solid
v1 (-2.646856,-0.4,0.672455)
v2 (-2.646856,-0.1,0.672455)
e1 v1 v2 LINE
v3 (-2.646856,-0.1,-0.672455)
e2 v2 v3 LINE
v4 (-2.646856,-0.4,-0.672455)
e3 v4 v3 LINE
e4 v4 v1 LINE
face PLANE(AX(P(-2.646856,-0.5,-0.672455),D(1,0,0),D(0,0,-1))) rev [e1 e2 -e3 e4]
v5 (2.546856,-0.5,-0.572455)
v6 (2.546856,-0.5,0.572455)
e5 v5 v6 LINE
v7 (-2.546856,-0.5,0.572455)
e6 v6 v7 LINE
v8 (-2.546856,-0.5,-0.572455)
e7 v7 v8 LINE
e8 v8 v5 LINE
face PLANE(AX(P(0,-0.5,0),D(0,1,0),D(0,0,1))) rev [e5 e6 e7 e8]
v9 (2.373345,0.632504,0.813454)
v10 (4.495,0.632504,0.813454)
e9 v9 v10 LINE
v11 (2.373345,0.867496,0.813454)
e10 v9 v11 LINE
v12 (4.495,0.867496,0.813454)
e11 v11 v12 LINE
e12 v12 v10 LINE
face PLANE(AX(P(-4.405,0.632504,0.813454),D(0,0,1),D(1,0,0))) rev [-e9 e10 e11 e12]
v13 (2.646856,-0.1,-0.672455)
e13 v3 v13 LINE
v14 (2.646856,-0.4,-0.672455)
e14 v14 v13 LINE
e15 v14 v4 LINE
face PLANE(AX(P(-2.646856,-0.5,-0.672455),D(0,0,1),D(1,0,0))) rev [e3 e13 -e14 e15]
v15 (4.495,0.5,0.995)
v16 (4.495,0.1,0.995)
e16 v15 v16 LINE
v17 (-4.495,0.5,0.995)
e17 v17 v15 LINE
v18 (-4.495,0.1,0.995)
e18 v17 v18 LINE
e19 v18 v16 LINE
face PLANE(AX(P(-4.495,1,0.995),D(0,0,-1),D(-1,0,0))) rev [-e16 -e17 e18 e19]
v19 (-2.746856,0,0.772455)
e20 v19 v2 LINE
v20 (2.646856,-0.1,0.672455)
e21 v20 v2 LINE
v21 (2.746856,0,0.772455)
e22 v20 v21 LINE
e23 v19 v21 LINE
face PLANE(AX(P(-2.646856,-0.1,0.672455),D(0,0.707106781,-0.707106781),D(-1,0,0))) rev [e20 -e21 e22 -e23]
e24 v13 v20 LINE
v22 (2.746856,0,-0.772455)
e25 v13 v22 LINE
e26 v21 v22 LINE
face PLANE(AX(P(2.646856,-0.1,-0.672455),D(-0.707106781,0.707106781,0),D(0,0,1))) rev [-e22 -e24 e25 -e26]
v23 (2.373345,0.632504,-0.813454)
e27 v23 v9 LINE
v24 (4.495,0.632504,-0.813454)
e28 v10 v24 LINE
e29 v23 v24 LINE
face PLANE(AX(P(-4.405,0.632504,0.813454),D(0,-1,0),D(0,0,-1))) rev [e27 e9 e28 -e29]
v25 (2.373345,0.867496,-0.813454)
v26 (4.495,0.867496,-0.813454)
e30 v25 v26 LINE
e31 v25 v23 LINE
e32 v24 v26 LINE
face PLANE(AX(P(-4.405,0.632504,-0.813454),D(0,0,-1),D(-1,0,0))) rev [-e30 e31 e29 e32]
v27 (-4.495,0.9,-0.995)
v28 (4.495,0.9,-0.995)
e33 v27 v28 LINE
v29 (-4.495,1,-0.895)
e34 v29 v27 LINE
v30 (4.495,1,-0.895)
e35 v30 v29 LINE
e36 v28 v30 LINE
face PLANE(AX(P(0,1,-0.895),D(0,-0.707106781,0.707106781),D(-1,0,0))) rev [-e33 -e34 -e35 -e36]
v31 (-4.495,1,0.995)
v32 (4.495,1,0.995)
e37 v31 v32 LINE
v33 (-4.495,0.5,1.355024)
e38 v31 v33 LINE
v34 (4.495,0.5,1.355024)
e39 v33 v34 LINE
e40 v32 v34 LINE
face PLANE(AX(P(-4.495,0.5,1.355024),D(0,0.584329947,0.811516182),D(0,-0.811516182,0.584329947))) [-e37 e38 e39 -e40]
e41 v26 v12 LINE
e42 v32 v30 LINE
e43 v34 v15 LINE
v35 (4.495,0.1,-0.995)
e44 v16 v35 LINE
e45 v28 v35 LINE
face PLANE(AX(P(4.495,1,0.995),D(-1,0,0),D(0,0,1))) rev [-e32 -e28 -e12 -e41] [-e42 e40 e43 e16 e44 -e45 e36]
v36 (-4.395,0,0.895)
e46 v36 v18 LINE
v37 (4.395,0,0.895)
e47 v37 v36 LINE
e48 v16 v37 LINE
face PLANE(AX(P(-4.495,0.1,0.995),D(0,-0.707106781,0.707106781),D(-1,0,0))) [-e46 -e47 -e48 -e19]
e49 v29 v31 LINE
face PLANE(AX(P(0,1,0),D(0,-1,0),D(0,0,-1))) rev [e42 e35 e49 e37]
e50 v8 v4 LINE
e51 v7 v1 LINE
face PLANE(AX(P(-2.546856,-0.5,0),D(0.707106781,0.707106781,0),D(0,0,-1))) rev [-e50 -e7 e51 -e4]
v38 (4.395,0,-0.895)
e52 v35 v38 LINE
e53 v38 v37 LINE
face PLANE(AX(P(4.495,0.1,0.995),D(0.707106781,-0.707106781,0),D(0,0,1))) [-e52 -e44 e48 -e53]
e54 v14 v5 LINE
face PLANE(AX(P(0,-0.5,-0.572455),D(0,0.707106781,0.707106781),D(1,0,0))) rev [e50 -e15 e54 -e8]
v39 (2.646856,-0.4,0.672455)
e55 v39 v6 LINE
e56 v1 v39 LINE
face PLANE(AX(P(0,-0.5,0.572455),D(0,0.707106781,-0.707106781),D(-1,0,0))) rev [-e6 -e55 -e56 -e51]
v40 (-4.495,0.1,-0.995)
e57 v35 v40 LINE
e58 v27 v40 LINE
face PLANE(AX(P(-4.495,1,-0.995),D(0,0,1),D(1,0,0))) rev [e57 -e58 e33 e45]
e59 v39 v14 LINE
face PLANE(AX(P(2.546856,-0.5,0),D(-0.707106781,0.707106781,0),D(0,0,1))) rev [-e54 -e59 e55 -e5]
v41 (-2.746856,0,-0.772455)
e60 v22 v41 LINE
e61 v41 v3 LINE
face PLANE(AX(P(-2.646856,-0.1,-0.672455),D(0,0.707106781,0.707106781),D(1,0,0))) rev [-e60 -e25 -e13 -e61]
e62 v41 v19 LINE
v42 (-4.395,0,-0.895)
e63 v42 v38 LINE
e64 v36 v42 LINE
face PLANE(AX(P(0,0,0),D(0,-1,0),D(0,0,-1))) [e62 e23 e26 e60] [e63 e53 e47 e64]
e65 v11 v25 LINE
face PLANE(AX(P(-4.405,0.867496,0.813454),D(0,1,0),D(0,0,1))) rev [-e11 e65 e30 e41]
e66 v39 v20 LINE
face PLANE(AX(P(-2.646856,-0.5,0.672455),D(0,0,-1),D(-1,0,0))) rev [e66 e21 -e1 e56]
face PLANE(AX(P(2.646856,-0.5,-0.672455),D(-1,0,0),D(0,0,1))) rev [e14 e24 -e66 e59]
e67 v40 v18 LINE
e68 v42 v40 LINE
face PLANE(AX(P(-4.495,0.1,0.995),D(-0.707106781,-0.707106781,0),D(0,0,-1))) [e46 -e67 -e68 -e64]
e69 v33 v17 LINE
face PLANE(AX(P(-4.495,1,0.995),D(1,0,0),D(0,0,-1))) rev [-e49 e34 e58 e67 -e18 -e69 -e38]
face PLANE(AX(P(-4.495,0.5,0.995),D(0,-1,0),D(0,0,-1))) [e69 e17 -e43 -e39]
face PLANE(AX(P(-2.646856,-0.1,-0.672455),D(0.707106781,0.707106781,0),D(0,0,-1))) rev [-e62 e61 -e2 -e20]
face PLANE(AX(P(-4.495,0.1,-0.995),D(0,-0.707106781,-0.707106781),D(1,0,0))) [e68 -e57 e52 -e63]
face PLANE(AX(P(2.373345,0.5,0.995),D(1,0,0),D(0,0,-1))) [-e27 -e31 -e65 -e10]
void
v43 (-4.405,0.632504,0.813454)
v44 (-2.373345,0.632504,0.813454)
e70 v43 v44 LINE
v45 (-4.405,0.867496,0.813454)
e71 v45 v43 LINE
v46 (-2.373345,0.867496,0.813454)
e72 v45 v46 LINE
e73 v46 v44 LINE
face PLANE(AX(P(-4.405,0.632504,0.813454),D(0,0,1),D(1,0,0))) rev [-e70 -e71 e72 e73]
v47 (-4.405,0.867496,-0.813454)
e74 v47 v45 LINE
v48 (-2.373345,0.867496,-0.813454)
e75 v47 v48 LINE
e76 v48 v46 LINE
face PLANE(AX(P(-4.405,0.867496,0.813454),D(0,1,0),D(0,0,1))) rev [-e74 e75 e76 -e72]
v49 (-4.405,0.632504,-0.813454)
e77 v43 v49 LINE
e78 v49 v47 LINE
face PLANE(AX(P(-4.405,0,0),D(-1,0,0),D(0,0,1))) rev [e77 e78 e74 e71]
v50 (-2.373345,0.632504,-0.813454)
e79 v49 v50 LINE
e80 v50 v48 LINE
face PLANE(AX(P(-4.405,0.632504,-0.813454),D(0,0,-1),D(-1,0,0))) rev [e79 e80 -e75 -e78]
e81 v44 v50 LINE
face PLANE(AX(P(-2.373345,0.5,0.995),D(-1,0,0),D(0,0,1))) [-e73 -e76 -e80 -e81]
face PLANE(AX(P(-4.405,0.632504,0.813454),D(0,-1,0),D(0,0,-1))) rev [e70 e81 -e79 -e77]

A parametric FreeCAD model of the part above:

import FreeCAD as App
import Part
import Sketcher


def edges_at(feature, points):
    """Names of the edges that pass closest to the given points."""
    edges = feature.Shape.Edges
    near = lambda p: min(range(len(edges)), key=lambda i: edges[i].distToShape(Part.Vertex(*p))[0])
    return sorted({f"Edge{near(p) + 1}" for p in points})

doc = App.newDocument("Part")
body = doc.addObject("PartDesign::Body", "Body")

sketch1 = doc.addObject("Sketcher::SketchObject", "Sketch")
body.addObject(sketch1)
sketch1.AttachmentSupport = (doc.XZ_Plane, [""])
sketch1.MapMode = "FlatFace"
sketch1.addGeometry(Part.LineSegment(App.Vector(-4.5, -1, 0), App.Vector(-4.5, 1, 0)), False)
sketch1.addGeometry(Part.LineSegment(App.Vector(-4.5, 1, 0), App.Vector(4.5, 1, 0)), False)
sketch1.addGeometry(Part.LineSegment(App.Vector(4.5, 1, 0), App.Vector(4.5, -1, 0)), False)
sketch1.addGeometry(Part.LineSegment(App.Vector(4.5, -1, 0), App.Vector(-4.5, -1, 0)), False)
sketch1.addConstraint(Sketcher.Constraint("Coincident", 0, 2, 1, 1))
sketch1.addConstraint(Sketcher.Constraint("Coincident", 1, 2, 2, 1))
sketch1.addConstraint(Sketcher.Constraint("Coincident", 2, 2, 3, 1))
sketch1.addConstraint(Sketcher.Constraint("Coincident", 3, 2, 0, 1))
sketch1.addConstraint(Sketcher.Constraint("Vertical", 0))
sketch1.addConstraint(Sketcher.Constraint("Horizontal", 1))
sketch1.addConstraint(Sketcher.Constraint("Vertical", 2))
sketch1.addConstraint(Sketcher.Constraint("Horizontal", 3))
sketch1.addConstraint(Sketcher.Constraint("Symmetric", 0, 2, 2, 2, -1, 1))
sketch1.addConstraint(Sketcher.Constraint("DistanceX", 1, 1, 1, 2, 8.99))
sketch1.addConstraint(Sketcher.Constraint("DistanceY", 0, 1, 0, 2, 1.99))
pad1 = doc.addObject("PartDesign::Pad", "Pad")
body.addObject(pad1)
pad1.Profile = sketch1
pad1.Length = 1
pad1.Reversed = True

sketch2 = doc.addObject("Sketcher::SketchObject", "Sketch001")
body.addObject(sketch2)
sketch2.AttachmentSupport = (doc.YZ_Plane, [""])
sketch2.MapMode = "FlatFace"
sketch2.AttachmentOffset = App.Placement(App.Vector(0, 0, 4.495), App.Rotation())
sketch2.addGeometry(Part.LineSegment(App.Vector(0.5, 1.36, 0), App.Vector(0.5, 0.99, 0)), False)
sketch2.addGeometry(Part.LineSegment(App.Vector(0.5, 0.99, 0), App.Vector(1, 0.99, 0)), False)
sketch2.addGeometry(Part.LineSegment(App.Vector(1, 0.99, 0), App.Vector(0.5, 1.36, 0)), False)
sketch2.addConstraint(Sketcher.Constraint("Coincident", 0, 2, 1, 1))
sketch2.addConstraint(Sketcher.Constraint("Coincident", 1, 2, 2, 1))
sketch2.addConstraint(Sketcher.Constraint("Coincident", 2, 2, 0, 1))
sketch2.addConstraint(Sketcher.Constraint("Vertical", 0))
sketch2.addConstraint(Sketcher.Constraint("Horizontal", 1))
sketch2.addConstraint(Sketcher.Constraint("DistanceX", 1, 1, 1, 2, 0.5))
sketch2.addConstraint(Sketcher.Constraint("DistanceX", -1, 1, 1, 2, 1.0))
sketch2.addConstraint(Sketcher.Constraint("DistanceY", -1, 1, 0, 2, 0.995))
sketch2.addConstraint(Sketcher.Constraint("Distance", 2, 0.616131))
pad2 = doc.addObject("PartDesign::Pad", "Pad001")
body.addObject(pad2)
pad2.Profile = sketch2
pad2.Length = 8.99
pad2.Reversed = True

sketch3 = doc.addObject("Sketcher::SketchObject", "Sketch002")
body.addObject(sketch3)
sketch3.AttachmentSupport = (doc.YZ_Plane, [""])
sketch3.MapMode = "FlatFace"
sketch3.AttachmentOffset = App.Placement(App.Vector(0, 0, 4.495), App.Rotation())
sketch3.addGeometry(Part.LineSegment(App.Vector(0.87, 0.81, 0), App.Vector(0.63, 0.81, 0)), False)
sketch3.addGeometry(Part.LineSegment(App.Vector(0.63, 0.81, 0), App.Vector(0.63, -0.81, 0)), False)
sketch3.addGeometry(Part.LineSegment(App.Vector(0.63, -0.81, 0), App.Vector(0.87, -0.81, 0)), False)
sketch3.addGeometry(Part.LineSegment(App.Vector(0.87, -0.81, 0), App.Vector(0.87, 0.81, 0)), False)
sketch3.addConstraint(Sketcher.Constraint("Coincident", 0, 2, 1, 1))
sketch3.addConstraint(Sketcher.Constraint("Coincident", 1, 2, 2, 1))
sketch3.addConstraint(Sketcher.Constraint("Coincident", 2, 2, 3, 1))
sketch3.addConstraint(Sketcher.Constraint("Coincident", 3, 2, 0, 1))
sketch3.addConstraint(Sketcher.Constraint("Horizontal", 0))
sketch3.addConstraint(Sketcher.Constraint("Vertical", 1))
sketch3.addConstraint(Sketcher.Constraint("Horizontal", 2))
sketch3.addConstraint(Sketcher.Constraint("Vertical", 3))
sketch3.addConstraint(Sketcher.Constraint("DistanceY", 1, 2, 1, 1, 1.626908))
sketch3.addConstraint(Sketcher.Constraint("DistanceX", 0, 2, 0, 1, 0.234993))
sketch3.addConstraint(Sketcher.Constraint("DistanceX", -1, 1, 0, 2, 0.632504))
sketch3.addConstraint(Sketcher.Constraint("DistanceY", -1, 1, 0, 2, 0.813454))
pocket1 = doc.addObject("PartDesign::Pocket", "Pocket")
body.addObject(pocket1)
pocket1.Profile = sketch3
pocket1.Length = 8.9

sketch4 = doc.addObject("Sketcher::SketchObject", "Sketch003")
body.addObject(sketch4)
sketch4.AttachmentSupport = (doc.XZ_Plane, [""])
sketch4.MapMode = "FlatFace"
sketch4.addGeometry(Part.LineSegment(App.Vector(-2.6, 0.7, 0), App.Vector(-2.6, -0.7, 0)), False)
sketch4.addGeometry(Part.LineSegment(App.Vector(-2.6, -0.7, 0), App.Vector(2.6, -0.7, 0)), False)
sketch4.addGeometry(Part.LineSegment(App.Vector(2.6, -0.7, 0), App.Vector(2.6, 0.7, 0)), False)
sketch4.addGeometry(Part.LineSegment(App.Vector(2.6, 0.7, 0), App.Vector(-2.6, 0.7, 0)), False)
sketch4.addConstraint(Sketcher.Constraint("Coincident", 0, 2, 1, 1))
sketch4.addConstraint(Sketcher.Constraint("Coincident", 1, 2, 2, 1))
sketch4.addConstraint(Sketcher.Constraint("Coincident", 2, 2, 3, 1))
sketch4.addConstraint(Sketcher.Constraint("Coincident", 3, 2, 0, 1))
sketch4.addConstraint(Sketcher.Constraint("Vertical", 0))
sketch4.addConstraint(Sketcher.Constraint("Horizontal", 1))
sketch4.addConstraint(Sketcher.Constraint("Vertical", 2))
sketch4.addConstraint(Sketcher.Constraint("Horizontal", 3))
sketch4.addConstraint(Sketcher.Constraint("Symmetric", 0, 2, 2, 2, -1, 1))
sketch4.addConstraint(Sketcher.Constraint("DistanceX", 1, 1, 1, 2, 5.293712))
sketch4.addConstraint(Sketcher.Constraint("DistanceY", 0, 2, 0, 1, 1.34491))
pad3 = doc.addObject("PartDesign::Pad", "Pad002")
body.addObject(pad3)
pad3.Profile = sketch4
pad3.Length = 0.5

sketch5 = doc.addObject("Sketcher::SketchObject", "Sketch004")
body.addObject(sketch5)
sketch5.AttachmentSupport = (doc.XZ_Plane, [""])
sketch5.MapMode = "FlatFace"
sketch5.AttachmentOffset = App.Placement(App.Vector(0, 0, -1), App.Rotation())
sketch5.addGeometry(Part.LineSegment(App.Vector(-2.4, -1, 0), App.Vector(-2.4, 1, 0)), False)
sketch5.addGeometry(Part.LineSegment(App.Vector(-2.4, 1, 0), App.Vector(2.4, 1, 0)), False)
sketch5.addGeometry(Part.LineSegment(App.Vector(2.4, 1, 0), App.Vector(2.4, -1, 0)), False)
sketch5.addGeometry(Part.LineSegment(App.Vector(2.4, -1, 0), App.Vector(-2.4, -1, 0)), False)
sketch5.addConstraint(Sketcher.Constraint("Coincident", 0, 2, 1, 1))
sketch5.addConstraint(Sketcher.Constraint("Coincident", 1, 2, 2, 1))
sketch5.addConstraint(Sketcher.Constraint("Coincident", 2, 2, 3, 1))
sketch5.addConstraint(Sketcher.Constraint("Coincident", 3, 2, 0, 1))
sketch5.addConstraint(Sketcher.Constraint("Vertical", 0))
sketch5.addConstraint(Sketcher.Constraint("Horizontal", 1))
sketch5.addConstraint(Sketcher.Constraint("Vertical", 2))
sketch5.addConstraint(Sketcher.Constraint("Horizontal", 3))
sketch5.addConstraint(Sketcher.Constraint("Symmetric", 0, 2, 2, 2, -1, 1))
sketch5.addConstraint(Sketcher.Constraint("DistanceY", 0, 1, 0, 2, 1.99))
sketch5.addConstraint(Sketcher.Constraint("DistanceX", 1, 1, 1, 2, 4.74669))
pad4 = doc.addObject("PartDesign::Pad", "Pad003")
body.addObject(pad4)
pad4.Profile = sketch5
pad4.Length = 0.5
doc.recompute()

chamfer = doc.addObject("PartDesign::Chamfer", "Chamfer")
body.addObject(chamfer)
chamfer.Base = (pad4, edges_at(pad4, [
    (2.647, 0, 0),
    (0, 0, 0.672),
    (-2.647, 0, 0),
    (0, 0, -0.672),
    (2.647, -0.5, 0),
    (0, -0.5, 0.672),
    (-2.647, -0.5, 0),
    (0, -0.5, -0.672),
    (0, 0, 0.995),
    (-4.495, 0, 0),
    (0, 0, -0.995),
    (4.495, 0, 0),
]))
chamfer.Size = 0.1
doc.recompute()

chamfer2 = doc.addObject("PartDesign::Chamfer", "Chamfer001")
body.addObject(chamfer2)
chamfer2.Base = (chamfer, edges_at(chamfer, [(0, 1, -0.995)]))
chamfer2.Size = 0.1

doc.recompute()
